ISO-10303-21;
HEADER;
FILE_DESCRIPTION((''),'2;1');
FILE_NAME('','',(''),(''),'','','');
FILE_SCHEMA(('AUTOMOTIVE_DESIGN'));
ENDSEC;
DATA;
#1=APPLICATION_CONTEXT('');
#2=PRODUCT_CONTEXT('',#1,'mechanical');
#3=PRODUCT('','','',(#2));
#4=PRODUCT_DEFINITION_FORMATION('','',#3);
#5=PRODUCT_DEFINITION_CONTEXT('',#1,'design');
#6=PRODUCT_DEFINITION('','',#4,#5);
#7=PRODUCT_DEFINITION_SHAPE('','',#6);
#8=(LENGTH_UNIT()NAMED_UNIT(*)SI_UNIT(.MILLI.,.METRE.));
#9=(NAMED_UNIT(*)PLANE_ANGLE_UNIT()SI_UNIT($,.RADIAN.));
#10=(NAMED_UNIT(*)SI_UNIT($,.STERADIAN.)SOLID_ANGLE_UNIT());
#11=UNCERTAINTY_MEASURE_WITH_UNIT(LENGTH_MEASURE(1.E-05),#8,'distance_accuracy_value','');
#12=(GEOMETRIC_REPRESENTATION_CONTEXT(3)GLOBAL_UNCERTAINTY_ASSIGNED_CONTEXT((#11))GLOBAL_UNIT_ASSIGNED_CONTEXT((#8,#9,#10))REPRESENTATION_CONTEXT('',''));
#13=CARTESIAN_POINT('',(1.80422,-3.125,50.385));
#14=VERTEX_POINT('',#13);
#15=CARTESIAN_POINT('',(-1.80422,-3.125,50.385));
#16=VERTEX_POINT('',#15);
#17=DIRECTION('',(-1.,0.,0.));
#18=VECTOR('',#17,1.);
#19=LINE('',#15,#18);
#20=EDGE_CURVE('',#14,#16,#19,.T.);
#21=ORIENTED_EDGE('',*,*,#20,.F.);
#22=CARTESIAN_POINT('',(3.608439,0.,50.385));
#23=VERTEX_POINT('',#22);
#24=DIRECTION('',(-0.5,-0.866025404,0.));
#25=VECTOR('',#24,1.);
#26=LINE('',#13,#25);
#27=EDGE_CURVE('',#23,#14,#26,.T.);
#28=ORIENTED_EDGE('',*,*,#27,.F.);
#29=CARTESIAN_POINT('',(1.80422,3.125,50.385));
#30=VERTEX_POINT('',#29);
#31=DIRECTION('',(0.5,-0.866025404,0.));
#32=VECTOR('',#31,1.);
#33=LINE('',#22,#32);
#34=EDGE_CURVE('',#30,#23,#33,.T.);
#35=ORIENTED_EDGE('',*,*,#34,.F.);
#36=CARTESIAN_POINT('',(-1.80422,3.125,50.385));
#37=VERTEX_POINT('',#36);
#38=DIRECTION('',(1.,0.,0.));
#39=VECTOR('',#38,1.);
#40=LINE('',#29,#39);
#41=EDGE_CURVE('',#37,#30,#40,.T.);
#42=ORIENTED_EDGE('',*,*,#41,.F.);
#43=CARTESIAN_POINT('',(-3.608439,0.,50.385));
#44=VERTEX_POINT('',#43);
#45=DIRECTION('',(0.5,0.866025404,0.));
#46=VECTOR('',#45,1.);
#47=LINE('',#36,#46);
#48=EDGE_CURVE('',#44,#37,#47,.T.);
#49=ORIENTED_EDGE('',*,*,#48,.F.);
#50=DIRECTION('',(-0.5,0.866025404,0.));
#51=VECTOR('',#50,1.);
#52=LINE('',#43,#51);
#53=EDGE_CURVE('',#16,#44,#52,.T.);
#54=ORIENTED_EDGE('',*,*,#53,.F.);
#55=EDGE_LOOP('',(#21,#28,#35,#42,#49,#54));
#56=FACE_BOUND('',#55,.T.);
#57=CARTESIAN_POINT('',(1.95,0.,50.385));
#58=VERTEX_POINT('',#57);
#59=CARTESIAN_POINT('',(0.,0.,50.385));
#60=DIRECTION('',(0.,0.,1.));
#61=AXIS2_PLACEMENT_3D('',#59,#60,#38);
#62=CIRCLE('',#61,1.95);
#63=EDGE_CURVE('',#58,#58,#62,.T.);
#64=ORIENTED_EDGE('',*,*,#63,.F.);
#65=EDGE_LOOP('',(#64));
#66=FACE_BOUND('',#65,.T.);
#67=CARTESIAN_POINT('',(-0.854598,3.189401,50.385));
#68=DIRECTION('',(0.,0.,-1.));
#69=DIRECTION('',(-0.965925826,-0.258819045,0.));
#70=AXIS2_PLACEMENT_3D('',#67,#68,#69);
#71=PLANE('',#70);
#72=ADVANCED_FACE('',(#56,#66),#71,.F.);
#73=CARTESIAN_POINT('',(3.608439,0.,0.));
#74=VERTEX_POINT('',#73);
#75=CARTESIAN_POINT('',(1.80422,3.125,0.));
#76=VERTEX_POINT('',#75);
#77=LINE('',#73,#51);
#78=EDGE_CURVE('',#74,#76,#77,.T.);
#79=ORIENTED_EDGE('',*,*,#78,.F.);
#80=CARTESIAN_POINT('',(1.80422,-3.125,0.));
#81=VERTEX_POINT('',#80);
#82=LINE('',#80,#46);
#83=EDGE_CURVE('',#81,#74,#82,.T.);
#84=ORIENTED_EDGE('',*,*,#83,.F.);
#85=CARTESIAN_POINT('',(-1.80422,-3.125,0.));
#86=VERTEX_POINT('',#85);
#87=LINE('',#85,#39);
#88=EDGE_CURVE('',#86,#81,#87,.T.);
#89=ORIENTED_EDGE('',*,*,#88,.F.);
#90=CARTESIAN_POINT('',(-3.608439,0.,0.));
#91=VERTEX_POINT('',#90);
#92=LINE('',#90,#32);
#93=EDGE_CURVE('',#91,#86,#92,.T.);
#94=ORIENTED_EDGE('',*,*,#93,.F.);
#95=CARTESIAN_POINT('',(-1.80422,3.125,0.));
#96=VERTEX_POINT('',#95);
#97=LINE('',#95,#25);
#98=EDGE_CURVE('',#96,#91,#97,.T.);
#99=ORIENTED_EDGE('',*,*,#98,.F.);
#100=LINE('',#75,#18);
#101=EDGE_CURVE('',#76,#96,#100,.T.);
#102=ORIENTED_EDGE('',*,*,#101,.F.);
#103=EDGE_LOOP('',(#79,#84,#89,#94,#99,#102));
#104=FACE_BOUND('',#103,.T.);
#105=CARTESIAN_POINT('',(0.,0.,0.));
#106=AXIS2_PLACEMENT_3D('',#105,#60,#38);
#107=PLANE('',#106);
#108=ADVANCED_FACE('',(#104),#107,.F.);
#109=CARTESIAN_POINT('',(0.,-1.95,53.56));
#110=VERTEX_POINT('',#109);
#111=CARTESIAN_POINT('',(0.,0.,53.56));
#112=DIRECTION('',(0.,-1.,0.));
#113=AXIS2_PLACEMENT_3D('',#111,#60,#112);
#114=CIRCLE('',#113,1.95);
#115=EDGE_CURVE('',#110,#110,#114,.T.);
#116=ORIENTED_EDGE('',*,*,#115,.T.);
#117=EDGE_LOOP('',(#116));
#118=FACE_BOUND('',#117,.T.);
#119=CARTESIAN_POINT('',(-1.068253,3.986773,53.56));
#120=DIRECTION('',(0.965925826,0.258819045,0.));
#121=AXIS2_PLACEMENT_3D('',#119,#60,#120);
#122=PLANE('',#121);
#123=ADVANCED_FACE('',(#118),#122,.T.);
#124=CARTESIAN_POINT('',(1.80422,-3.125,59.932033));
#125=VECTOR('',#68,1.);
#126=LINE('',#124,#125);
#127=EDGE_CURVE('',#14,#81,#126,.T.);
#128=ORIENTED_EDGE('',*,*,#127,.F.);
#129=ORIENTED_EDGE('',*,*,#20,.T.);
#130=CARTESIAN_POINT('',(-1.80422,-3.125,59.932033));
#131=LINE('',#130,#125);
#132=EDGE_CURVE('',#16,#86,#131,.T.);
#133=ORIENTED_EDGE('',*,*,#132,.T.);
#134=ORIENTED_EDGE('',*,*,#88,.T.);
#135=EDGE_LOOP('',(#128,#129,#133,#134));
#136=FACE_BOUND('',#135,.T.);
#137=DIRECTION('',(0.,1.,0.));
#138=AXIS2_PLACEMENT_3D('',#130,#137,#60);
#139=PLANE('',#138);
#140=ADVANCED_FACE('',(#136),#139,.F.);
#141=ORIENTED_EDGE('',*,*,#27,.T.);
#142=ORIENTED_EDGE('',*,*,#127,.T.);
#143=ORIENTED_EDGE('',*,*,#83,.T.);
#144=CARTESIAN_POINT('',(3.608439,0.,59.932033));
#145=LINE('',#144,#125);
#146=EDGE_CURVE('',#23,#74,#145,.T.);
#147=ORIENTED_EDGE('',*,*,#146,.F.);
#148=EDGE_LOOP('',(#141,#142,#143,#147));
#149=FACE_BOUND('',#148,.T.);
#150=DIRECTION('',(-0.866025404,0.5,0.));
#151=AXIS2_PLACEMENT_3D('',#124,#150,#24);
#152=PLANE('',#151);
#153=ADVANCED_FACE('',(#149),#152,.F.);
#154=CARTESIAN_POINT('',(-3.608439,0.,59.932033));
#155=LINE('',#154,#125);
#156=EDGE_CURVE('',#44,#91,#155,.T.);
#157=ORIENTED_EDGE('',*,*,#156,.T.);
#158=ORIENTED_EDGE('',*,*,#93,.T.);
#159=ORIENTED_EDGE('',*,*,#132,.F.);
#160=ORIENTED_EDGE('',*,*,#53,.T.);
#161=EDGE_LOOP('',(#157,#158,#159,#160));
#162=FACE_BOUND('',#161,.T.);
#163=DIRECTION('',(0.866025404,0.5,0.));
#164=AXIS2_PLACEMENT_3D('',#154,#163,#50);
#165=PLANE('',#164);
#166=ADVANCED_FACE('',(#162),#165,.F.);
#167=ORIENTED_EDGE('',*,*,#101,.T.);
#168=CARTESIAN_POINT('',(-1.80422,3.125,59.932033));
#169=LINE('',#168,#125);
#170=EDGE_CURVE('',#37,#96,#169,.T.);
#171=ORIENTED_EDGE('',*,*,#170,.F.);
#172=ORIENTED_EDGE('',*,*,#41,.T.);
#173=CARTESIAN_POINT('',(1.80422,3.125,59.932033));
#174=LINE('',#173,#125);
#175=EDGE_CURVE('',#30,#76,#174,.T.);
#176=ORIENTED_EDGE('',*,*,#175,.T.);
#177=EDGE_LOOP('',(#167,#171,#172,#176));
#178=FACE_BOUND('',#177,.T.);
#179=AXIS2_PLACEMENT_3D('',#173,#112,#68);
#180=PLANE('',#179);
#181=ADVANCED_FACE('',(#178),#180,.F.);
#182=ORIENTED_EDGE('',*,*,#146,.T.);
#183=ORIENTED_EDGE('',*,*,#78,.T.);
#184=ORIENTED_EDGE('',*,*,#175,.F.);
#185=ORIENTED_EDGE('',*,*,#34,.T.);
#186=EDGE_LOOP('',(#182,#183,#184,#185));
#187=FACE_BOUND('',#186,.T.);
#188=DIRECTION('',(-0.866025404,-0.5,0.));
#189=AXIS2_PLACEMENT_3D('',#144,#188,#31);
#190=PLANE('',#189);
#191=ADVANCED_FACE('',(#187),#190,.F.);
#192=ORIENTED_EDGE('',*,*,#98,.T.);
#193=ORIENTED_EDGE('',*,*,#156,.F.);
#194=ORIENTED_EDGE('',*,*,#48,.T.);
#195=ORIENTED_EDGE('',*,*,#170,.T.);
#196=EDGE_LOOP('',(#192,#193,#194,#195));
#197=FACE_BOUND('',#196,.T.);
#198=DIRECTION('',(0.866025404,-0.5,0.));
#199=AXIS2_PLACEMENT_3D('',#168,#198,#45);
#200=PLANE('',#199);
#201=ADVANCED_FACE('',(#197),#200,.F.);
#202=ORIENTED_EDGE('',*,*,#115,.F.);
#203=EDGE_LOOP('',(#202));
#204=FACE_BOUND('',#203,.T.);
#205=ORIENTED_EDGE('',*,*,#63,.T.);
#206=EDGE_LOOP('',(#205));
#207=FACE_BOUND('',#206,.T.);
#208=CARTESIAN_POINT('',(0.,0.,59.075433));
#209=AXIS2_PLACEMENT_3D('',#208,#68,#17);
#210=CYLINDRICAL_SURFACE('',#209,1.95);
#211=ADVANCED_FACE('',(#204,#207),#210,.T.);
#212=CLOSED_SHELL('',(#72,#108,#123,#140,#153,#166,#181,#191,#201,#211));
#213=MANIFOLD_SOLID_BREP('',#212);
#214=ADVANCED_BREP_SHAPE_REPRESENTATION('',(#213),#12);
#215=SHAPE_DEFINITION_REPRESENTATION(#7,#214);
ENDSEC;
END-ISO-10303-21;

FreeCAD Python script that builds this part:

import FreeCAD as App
import Part
import Sketcher

V = App.Vector
Q = App.Units.Quantity


def add_polygon(sketch, points):
    """Adds a closed chain of lines whose ends are joined by coincident constraints."""
    first, n = sketch.GeometryCount, len(points)
    for a, b in zip(points, points[1:] + points[:1]):
        sketch.addGeometry(Part.LineSegment(App.Vector(*a, 0), App.Vector(*b, 0)), False)
    for i in range(n):
        sketch.addConstraint(Sketcher.Constraint("Coincident", first + i, 2, first + (i + 1) % n, 1))

doc = App.newDocument("Part")
params = doc.addObject("Spreadsheet::Sheet", "Params")
for row, (alias, value) in enumerate([
    ("pad1_length", "50.385 mm"),
    ("sketch2_diameter", "3.9 mm"),
    ("pad2_length", "3.175 mm"),
], start=1):
    params.set(f"A{row}", alias)
    params.set(f"B{row}", "=" + value)
    params.setAlias(f"B{row}", alias)

body = doc.addObject("PartDesign::Body", "Body")

sketch1 = doc.addObject("Sketcher::SketchObject", "Sketch")
body.addObject(sketch1)
sketch1.AttachmentSupport = (doc.XY_Plane, [""])
sketch1.MapMode = "FlatFace"
add_polygon(sketch1, [(3.6, 0), (1.8, 3.1), (-1.8, 3.1), (-3.6, 0), (-1.8, -3.1), (1.8, -3.1)])
sketch1.addConstraint([
    Sketcher.Constraint("Horizontal", 1),
    Sketcher.Constraint("Horizontal", 4),
    Sketcher.Constraint("Symmetric", 0, 2, 3, 2, -1, 1),
    Sketcher.Constraint("Symmetric", 2, 2, 5, 2, -1, 1),
    Sketcher.Constraint("PointOnObject", 2, 2, -1),
    Sketcher.Constraint("Parallel", 2, 5),
    Sketcher.Constraint("Vertical", 1, 2, 3, 2),
    Sketcher.Constraint("Angle", 0, Q("120 deg")),
    Sketcher.Constraint("DistanceY", 3, 2, 1, 2, Q("6.25 mm")),
    Sketcher.Constraint("DistanceX", 1, 2, 1, 1, Q("3.608439 mm")),
])
pad1 = doc.addObject("PartDesign::Pad", "Pad")
body.addObject(pad1)
pad1.Profile = sketch1
pad1.setExpression("Length", "Params.pad1_length")

sketch2 = doc.addObject("Sketcher::SketchObject", "Sketch001")
body.addObject(sketch2)
sketch2.AttachmentSupport = (doc.XY_Plane, [""])
sketch2.MapMode = "FlatFace"
sketch2.AttachmentOffset = App.Placement(V(0, 0, 50.385), App.Rotation())
sketch2.addGeometry(Part.Circle(V(0, 0, 0), V(0, 0, 1), 1.9), False)
sketch2.addConstraint([
    Sketcher.Constraint("Coincident", 0, 3, -1, 1),
    Sketcher.Constraint("Diameter", 0, Q("3.9 mm")),
])
sketch2.setExpression("Constraints[1]", "Params.sketch2_diameter")
pad2 = doc.addObject("PartDesign::Pad", "Pad001")
body.addObject(pad2)
pad2.Profile = sketch2
pad2.setExpression("Length", "Params.pad2_length")

doc.recompute()
